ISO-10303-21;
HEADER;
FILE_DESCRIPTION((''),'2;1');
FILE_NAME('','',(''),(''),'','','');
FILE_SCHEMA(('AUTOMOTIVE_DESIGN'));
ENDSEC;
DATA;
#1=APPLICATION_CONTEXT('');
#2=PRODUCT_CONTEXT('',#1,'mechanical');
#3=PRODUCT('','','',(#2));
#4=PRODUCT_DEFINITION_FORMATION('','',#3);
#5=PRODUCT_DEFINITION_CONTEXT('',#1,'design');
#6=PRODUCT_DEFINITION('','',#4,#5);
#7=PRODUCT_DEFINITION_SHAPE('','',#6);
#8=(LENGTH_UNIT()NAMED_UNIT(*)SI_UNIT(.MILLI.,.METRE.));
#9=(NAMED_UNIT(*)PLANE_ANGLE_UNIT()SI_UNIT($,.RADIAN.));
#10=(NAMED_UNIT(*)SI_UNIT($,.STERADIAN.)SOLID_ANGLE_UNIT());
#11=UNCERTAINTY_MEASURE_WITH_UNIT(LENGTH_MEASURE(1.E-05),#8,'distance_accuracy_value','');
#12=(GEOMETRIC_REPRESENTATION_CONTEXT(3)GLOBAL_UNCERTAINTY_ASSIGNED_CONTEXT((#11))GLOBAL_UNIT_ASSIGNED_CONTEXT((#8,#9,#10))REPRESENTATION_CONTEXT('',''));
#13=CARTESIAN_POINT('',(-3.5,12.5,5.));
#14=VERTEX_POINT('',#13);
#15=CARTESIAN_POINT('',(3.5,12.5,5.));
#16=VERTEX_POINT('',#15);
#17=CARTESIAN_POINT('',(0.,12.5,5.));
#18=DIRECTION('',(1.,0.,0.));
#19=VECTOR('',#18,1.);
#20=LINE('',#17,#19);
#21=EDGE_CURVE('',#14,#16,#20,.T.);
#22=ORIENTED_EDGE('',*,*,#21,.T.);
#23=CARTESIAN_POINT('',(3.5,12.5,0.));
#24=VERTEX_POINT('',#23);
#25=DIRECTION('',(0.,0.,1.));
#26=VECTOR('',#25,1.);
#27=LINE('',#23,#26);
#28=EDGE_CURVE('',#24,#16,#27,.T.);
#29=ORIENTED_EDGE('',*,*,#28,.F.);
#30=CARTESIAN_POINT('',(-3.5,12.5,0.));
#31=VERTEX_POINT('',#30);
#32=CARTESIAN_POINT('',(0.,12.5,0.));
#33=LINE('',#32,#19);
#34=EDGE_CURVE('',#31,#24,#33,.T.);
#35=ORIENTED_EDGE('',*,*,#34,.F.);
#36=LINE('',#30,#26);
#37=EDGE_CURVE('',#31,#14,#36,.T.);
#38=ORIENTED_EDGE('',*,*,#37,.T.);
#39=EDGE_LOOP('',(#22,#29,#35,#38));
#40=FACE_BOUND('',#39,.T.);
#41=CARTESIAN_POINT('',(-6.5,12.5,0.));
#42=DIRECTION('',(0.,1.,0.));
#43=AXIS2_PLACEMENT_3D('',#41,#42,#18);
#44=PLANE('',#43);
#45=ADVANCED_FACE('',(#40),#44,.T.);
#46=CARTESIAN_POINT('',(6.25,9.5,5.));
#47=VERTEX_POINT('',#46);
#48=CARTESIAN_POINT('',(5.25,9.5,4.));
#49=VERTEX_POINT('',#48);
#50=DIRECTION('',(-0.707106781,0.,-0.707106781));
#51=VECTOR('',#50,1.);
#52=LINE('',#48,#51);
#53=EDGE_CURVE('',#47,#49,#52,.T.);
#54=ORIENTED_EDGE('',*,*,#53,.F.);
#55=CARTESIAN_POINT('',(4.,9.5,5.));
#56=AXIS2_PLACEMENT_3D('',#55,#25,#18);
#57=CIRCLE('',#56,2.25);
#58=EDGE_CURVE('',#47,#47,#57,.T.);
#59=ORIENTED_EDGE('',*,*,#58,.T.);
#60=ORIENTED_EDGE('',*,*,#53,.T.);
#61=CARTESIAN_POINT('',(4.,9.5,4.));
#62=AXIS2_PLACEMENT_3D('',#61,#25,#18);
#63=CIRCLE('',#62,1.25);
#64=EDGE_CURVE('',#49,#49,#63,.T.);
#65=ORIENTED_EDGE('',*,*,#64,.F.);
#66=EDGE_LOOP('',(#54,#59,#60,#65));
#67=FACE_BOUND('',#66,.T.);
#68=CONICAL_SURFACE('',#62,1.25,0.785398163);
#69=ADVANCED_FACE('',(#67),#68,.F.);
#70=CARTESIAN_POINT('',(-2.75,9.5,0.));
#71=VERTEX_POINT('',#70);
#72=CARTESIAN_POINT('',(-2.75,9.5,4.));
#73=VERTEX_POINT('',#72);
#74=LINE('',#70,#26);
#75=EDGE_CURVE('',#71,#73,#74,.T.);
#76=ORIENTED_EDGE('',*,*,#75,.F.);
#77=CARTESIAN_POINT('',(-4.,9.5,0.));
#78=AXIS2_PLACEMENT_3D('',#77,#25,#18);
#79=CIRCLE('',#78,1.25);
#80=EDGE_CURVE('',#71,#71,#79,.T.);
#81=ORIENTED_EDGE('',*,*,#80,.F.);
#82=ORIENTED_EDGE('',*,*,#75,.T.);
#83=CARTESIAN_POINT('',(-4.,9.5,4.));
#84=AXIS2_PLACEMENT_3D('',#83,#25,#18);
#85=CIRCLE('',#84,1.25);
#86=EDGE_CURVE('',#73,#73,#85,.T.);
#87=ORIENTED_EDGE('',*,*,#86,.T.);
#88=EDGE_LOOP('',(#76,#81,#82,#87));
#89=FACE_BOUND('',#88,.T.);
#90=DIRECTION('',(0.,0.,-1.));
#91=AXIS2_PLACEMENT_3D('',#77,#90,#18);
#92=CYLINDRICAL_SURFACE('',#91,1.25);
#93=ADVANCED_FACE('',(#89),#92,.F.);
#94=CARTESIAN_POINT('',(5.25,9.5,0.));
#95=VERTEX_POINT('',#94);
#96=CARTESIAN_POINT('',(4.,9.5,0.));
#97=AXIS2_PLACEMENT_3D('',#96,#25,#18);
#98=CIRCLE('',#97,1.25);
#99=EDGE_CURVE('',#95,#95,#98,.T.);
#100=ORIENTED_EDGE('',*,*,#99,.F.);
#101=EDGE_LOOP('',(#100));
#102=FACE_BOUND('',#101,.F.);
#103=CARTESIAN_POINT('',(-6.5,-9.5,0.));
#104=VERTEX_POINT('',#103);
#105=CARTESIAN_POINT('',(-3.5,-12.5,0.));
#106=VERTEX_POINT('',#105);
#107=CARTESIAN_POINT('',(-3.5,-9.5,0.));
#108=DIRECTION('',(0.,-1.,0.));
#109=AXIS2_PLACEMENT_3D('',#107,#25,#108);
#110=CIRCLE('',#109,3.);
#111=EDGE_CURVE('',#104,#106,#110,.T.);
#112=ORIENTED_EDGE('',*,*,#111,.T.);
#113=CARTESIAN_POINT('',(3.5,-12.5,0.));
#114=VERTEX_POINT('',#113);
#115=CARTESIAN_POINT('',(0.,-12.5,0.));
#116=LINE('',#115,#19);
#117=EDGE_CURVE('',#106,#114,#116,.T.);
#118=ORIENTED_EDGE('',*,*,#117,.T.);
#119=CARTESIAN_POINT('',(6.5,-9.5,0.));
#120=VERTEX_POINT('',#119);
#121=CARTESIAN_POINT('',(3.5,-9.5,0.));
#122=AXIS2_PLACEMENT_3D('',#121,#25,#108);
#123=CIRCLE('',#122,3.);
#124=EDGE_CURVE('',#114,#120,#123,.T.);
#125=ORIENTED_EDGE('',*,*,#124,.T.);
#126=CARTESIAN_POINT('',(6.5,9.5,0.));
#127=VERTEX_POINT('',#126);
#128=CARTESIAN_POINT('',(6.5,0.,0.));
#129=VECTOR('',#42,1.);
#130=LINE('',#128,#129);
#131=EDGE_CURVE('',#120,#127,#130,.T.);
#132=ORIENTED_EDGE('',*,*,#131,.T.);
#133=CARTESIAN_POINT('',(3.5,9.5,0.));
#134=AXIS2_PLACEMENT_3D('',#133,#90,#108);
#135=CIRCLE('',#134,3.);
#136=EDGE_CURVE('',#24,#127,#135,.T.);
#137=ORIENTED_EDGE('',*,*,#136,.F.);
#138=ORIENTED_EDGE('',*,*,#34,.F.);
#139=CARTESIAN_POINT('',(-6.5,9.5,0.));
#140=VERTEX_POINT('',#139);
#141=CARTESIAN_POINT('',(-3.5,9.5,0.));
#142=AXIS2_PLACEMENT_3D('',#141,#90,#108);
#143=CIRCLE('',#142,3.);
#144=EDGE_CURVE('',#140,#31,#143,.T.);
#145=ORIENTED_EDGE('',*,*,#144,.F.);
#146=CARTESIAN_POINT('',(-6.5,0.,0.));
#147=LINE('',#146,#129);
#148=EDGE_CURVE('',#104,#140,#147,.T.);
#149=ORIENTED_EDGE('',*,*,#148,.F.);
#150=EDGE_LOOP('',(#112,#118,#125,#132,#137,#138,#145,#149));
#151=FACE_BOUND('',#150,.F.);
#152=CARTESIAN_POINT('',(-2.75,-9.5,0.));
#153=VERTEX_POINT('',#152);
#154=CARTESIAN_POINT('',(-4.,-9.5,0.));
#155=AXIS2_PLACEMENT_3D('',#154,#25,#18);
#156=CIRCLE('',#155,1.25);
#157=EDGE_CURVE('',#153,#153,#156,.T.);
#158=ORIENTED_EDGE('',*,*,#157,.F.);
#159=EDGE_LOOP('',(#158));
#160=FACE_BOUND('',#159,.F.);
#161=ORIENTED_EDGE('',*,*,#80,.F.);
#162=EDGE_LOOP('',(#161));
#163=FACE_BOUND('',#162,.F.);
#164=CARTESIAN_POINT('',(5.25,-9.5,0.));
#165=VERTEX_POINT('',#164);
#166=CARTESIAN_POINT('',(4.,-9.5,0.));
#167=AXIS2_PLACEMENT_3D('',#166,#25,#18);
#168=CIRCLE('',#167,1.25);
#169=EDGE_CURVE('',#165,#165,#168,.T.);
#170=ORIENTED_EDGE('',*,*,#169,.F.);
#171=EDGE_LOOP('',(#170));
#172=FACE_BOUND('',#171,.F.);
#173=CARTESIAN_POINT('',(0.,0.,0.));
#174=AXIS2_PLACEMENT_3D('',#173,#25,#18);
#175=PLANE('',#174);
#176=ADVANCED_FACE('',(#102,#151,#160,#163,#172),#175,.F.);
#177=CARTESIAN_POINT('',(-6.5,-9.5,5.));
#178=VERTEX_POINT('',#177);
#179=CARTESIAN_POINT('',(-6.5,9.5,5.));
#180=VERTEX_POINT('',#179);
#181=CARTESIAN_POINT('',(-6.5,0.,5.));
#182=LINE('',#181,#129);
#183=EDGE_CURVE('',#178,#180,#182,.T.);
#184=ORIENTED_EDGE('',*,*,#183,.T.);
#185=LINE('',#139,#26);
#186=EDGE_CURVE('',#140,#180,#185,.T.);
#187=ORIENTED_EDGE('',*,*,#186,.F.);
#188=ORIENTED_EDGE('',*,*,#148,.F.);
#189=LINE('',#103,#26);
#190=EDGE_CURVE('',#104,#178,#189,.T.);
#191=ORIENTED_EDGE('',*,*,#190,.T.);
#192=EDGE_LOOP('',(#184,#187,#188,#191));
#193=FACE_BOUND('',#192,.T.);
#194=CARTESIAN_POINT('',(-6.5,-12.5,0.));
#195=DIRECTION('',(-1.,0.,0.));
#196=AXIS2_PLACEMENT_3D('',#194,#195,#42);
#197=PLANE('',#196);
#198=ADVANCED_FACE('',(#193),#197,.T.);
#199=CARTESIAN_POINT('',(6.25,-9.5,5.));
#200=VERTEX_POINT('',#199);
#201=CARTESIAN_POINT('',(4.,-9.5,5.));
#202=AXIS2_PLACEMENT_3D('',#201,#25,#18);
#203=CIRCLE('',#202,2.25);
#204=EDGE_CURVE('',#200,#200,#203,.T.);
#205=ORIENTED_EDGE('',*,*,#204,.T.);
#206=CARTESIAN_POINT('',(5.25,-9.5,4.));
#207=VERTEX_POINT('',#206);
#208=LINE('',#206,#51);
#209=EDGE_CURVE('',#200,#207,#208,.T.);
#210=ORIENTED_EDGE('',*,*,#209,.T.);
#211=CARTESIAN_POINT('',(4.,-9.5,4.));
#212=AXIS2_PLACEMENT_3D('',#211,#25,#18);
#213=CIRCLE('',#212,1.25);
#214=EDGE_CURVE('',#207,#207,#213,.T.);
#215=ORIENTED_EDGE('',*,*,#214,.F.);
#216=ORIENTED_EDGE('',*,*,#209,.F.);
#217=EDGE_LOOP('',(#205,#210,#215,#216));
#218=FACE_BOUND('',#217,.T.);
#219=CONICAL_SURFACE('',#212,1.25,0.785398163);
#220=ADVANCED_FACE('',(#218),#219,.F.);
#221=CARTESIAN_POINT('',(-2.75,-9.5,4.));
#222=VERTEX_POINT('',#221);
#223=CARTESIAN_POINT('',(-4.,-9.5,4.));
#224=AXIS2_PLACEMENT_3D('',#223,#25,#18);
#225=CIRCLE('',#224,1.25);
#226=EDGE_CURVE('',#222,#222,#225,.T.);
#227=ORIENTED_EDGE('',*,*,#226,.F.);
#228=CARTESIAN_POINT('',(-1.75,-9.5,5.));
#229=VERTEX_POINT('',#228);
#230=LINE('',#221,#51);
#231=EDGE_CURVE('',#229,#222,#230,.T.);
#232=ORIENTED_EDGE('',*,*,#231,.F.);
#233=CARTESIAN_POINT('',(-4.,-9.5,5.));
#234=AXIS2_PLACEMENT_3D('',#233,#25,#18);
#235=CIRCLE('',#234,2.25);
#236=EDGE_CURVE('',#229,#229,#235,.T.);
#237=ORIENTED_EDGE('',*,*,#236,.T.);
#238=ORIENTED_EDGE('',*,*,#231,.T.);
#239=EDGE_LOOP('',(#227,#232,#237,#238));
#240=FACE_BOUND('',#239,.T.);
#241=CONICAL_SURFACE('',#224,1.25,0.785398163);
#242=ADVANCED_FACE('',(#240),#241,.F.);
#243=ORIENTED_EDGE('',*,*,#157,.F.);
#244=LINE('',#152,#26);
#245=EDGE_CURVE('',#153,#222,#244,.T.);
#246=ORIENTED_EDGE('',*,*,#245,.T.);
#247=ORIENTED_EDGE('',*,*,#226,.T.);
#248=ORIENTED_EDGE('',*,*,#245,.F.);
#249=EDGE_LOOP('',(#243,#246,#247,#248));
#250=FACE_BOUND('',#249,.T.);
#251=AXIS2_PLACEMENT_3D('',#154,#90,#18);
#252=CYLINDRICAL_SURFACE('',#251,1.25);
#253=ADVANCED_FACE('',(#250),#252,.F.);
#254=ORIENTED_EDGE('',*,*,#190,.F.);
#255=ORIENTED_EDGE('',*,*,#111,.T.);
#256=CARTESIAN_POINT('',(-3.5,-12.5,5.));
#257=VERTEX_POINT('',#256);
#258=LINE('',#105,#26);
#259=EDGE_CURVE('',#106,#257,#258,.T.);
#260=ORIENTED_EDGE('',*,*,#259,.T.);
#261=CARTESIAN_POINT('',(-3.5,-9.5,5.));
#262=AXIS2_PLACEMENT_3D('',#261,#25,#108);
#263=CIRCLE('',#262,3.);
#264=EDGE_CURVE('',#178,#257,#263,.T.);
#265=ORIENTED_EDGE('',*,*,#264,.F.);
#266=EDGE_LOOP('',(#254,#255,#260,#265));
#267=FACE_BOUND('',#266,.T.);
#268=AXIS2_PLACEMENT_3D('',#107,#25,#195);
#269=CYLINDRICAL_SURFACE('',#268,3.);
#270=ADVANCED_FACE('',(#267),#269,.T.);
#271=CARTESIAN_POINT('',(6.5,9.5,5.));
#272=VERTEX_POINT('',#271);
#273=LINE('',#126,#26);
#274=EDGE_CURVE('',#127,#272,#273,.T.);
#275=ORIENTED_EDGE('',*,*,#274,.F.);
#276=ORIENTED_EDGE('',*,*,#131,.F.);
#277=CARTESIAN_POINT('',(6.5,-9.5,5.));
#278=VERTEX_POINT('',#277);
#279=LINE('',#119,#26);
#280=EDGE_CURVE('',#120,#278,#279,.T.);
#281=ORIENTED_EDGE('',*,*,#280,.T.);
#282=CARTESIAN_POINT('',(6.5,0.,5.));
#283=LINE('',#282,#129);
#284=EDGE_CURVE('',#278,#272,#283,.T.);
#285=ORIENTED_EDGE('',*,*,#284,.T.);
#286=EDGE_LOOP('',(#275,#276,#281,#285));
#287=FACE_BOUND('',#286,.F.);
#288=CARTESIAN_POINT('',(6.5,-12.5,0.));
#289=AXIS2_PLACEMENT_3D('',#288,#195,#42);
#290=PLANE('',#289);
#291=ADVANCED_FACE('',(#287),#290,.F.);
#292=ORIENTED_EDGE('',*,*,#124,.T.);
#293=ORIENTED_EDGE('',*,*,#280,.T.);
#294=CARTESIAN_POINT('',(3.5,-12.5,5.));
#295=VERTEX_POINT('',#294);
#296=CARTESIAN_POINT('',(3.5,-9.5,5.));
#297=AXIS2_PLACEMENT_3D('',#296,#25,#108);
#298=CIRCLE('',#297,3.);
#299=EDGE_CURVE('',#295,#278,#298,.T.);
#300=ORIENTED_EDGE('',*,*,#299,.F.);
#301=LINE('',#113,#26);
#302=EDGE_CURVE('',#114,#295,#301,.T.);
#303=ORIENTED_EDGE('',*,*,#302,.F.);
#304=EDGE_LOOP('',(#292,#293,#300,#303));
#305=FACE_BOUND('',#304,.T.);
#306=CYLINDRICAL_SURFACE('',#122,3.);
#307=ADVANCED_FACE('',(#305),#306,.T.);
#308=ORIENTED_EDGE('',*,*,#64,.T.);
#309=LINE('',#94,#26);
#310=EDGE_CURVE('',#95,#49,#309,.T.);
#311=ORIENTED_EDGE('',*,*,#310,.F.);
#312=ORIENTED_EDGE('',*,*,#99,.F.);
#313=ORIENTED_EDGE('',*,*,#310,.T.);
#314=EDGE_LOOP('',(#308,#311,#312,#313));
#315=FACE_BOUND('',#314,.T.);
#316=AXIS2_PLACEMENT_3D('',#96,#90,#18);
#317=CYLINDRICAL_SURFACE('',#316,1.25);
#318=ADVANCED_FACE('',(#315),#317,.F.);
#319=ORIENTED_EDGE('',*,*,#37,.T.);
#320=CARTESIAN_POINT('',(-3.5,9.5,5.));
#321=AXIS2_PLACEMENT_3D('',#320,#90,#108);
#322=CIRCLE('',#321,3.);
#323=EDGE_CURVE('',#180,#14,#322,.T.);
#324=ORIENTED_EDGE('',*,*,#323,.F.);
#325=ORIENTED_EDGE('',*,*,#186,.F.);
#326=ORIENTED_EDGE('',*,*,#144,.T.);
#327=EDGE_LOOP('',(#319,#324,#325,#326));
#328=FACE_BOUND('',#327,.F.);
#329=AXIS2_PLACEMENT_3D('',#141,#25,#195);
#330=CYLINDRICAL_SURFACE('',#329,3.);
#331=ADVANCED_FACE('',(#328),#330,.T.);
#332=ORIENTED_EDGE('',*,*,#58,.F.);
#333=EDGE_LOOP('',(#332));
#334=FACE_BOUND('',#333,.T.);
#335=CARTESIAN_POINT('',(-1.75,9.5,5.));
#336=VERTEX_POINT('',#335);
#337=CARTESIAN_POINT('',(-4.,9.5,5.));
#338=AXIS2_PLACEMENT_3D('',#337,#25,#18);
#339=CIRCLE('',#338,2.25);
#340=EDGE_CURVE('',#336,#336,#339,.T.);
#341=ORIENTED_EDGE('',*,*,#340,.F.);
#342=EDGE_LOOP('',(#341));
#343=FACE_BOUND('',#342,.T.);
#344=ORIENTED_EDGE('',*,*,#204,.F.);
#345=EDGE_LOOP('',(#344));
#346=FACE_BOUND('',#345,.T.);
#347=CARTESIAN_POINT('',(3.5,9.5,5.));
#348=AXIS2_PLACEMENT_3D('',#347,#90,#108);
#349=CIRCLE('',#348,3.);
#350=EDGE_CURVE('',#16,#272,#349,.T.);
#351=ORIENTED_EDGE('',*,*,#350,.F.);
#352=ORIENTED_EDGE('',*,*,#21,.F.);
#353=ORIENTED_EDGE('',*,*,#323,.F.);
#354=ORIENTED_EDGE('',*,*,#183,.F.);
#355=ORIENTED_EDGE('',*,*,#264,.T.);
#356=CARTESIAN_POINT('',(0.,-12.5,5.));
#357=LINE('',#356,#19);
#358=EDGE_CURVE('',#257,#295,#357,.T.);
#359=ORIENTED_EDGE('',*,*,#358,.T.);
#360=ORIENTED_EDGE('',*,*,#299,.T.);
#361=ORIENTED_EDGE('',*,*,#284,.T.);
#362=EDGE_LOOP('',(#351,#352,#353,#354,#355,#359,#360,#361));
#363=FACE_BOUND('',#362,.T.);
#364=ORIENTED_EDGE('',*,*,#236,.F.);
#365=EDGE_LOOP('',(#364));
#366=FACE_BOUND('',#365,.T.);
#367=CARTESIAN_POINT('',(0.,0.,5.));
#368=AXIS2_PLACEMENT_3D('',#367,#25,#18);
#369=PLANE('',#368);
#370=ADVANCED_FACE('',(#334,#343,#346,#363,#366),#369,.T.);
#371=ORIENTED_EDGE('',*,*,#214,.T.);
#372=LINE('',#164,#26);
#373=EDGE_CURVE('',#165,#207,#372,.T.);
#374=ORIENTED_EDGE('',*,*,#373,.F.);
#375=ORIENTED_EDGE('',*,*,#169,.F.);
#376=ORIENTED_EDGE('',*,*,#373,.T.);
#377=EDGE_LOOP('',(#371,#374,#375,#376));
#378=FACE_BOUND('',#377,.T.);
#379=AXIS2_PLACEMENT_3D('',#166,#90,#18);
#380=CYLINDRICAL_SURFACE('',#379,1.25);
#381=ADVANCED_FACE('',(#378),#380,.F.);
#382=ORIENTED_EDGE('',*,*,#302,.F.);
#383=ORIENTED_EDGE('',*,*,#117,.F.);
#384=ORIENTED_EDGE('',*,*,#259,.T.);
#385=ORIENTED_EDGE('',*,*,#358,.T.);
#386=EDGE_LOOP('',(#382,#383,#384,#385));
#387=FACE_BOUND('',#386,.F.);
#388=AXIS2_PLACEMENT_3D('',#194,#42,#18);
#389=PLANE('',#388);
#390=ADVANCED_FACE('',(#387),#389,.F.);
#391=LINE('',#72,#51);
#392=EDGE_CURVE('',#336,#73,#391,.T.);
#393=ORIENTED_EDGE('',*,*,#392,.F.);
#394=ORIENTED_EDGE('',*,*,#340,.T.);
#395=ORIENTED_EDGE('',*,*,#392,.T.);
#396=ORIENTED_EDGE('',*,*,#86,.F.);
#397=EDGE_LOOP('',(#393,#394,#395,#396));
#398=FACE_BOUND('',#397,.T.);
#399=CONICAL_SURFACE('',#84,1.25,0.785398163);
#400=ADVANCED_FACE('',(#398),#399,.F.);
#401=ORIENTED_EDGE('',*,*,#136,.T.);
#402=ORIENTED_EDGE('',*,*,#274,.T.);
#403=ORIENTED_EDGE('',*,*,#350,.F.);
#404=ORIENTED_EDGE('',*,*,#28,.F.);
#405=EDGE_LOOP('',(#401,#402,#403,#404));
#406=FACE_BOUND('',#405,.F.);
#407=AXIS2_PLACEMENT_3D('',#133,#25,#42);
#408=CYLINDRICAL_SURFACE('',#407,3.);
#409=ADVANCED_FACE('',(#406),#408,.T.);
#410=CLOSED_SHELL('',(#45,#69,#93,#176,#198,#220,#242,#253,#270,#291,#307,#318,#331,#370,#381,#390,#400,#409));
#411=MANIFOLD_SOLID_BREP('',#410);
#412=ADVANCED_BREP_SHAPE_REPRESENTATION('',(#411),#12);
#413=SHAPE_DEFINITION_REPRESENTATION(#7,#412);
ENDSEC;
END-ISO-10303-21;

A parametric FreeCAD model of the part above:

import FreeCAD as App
import Part
import Sketcher

V = App.Vector
Q = App.Units.Quantity


def edges_at(feature, points):
    """Names of the edges that pass closest to the given points."""
    edges = feature.Shape.Edges
    near = lambda p: min(range(len(edges)), key=lambda i: edges[i].distToShape(Part.Vertex(*p))[0])
    return sorted({f"Edge{near(p) + 1}" for p in points})

doc = App.newDocument("Part")
body = doc.addObject("PartDesign::Body", "Body")

sketch1 = doc.addObject("Sketcher::SketchObject", "Sketch")
body.addObject(sketch1)
sketch1.AttachmentSupport = (doc.XY_Plane, [""])
sketch1.MapMode = "FlatFace"
sketch1.addGeometry(Part.LineSegment(V(-6.5, 12.5, 0), V(-6.5, -12.5, 0)), False)
sketch1.addGeometry(Part.LineSegment(V(-6.5, -12.5, 0), V(6.5, -12.5, 0)), False)
sketch1.addGeometry(Part.LineSegment(V(6.5, -12.5, 0), V(6.5, 12.5, 0)), False)
sketch1.addGeometry(Part.LineSegment(V(6.5, 12.5, 0), V(-6.5, 12.5, 0)), False)
sketch1.addGeometry(Part.Circle(V(-4, -9.5, 0), V(0, 0, 1), 1.25), False)
sketch1.addGeometry(Part.Circle(V(4, -9.5, 0), V(0, 0, 1), 1.25), False)
sketch1.addGeometry(Part.Circle(V(-4, 9.5, 0), V(0, 0, 1), 1.25), False)
sketch1.addGeometry(Part.Circle(V(4, 9.5, 0), V(0, 0, 1), 1.25), False)
sketch1.addConstraint(Sketcher.Constraint("Coincident", 0, 2, 1, 1))
sketch1.addConstraint(Sketcher.Constraint("Coincident", 1, 2, 2, 1))
sketch1.addConstraint(Sketcher.Constraint("Coincident", 2, 2, 3, 1))
sketch1.addConstraint(Sketcher.Constraint("Coincident", 3, 2, 0, 1))
sketch1.addConstraint(Sketcher.Constraint("Vertical", 0))
sketch1.addConstraint(Sketcher.Constraint("Horizontal", 1))
sketch1.addConstraint(Sketcher.Constraint("Vertical", 2))
sketch1.addConstraint(Sketcher.Constraint("Horizontal", 3))
sketch1.addConstraint(Sketcher.Constraint("Equal", 4, 5))
sketch1.addConstraint(Sketcher.Constraint("Equal", 5, 6))
sketch1.addConstraint(Sketcher.Constraint("Equal", 6, 7))
sketch1.addConstraint(Sketcher.Constraint("Symmetric", 5, 3, 6, 3, -1, 1))
sketch1.addConstraint(Sketcher.Constraint("Symmetric", 4, 3, 7, 3, -1, 1))
sketch1.addConstraint(Sketcher.Constraint("Symmetric", 0, 2, 2, 2, -1, 1))
sketch1.addConstraint(Sketcher.Constraint("Symmetric", 4, 3, 5, 3, -2))
sketch1.addConstraint(Sketcher.Constraint("Diameter", 4, Q("2.5 mm")))
sketch1.addConstraint(Sketcher.Constraint("DistanceX", 1, 1, 1, 2, Q("13 mm")))
sketch1.addConstraint(Sketcher.Constraint("DistanceY", 0, 2, 0, 1, Q("25 mm")))
sketch1.addConstraint(Sketcher.Constraint("DistanceX", 4, 3, -1, 1, Q("4 mm")))
sketch1.addConstraint(Sketcher.Constraint("DistanceY", 4, 3, 6, 3, Q("19 mm")))
pad1 = doc.addObject("PartDesign::Pad", "Pad")
body.addObject(pad1)
pad1.Profile = sketch1
pad1.Length = 5
doc.recompute()

fillet = doc.addObject("PartDesign::Fillet", "Fillet")
body.addObject(fillet)
fillet.Base = (pad1, edges_at(pad1, [
    (-6.5, -12.5, 2.5),
    (6.5, -12.5, 2.5),
    (6.5, 12.5, 2.5),
    (-6.5, 12.5, 2.5),
]))
fillet.Radius = 3
doc.recompute()

chamfer = doc.addObject("PartDesign::Chamfer", "Chamfer")
body.addObject(chamfer)
chamfer.Base = (fillet, edges_at(fillet, [
    (-5.25, 9.5, 5),
    (2.75, 9.5, 5),
    (2.75, -9.5, 5),
    (-5.25, -9.5, 5),
]))
chamfer.Size = 1

doc.recompute()
